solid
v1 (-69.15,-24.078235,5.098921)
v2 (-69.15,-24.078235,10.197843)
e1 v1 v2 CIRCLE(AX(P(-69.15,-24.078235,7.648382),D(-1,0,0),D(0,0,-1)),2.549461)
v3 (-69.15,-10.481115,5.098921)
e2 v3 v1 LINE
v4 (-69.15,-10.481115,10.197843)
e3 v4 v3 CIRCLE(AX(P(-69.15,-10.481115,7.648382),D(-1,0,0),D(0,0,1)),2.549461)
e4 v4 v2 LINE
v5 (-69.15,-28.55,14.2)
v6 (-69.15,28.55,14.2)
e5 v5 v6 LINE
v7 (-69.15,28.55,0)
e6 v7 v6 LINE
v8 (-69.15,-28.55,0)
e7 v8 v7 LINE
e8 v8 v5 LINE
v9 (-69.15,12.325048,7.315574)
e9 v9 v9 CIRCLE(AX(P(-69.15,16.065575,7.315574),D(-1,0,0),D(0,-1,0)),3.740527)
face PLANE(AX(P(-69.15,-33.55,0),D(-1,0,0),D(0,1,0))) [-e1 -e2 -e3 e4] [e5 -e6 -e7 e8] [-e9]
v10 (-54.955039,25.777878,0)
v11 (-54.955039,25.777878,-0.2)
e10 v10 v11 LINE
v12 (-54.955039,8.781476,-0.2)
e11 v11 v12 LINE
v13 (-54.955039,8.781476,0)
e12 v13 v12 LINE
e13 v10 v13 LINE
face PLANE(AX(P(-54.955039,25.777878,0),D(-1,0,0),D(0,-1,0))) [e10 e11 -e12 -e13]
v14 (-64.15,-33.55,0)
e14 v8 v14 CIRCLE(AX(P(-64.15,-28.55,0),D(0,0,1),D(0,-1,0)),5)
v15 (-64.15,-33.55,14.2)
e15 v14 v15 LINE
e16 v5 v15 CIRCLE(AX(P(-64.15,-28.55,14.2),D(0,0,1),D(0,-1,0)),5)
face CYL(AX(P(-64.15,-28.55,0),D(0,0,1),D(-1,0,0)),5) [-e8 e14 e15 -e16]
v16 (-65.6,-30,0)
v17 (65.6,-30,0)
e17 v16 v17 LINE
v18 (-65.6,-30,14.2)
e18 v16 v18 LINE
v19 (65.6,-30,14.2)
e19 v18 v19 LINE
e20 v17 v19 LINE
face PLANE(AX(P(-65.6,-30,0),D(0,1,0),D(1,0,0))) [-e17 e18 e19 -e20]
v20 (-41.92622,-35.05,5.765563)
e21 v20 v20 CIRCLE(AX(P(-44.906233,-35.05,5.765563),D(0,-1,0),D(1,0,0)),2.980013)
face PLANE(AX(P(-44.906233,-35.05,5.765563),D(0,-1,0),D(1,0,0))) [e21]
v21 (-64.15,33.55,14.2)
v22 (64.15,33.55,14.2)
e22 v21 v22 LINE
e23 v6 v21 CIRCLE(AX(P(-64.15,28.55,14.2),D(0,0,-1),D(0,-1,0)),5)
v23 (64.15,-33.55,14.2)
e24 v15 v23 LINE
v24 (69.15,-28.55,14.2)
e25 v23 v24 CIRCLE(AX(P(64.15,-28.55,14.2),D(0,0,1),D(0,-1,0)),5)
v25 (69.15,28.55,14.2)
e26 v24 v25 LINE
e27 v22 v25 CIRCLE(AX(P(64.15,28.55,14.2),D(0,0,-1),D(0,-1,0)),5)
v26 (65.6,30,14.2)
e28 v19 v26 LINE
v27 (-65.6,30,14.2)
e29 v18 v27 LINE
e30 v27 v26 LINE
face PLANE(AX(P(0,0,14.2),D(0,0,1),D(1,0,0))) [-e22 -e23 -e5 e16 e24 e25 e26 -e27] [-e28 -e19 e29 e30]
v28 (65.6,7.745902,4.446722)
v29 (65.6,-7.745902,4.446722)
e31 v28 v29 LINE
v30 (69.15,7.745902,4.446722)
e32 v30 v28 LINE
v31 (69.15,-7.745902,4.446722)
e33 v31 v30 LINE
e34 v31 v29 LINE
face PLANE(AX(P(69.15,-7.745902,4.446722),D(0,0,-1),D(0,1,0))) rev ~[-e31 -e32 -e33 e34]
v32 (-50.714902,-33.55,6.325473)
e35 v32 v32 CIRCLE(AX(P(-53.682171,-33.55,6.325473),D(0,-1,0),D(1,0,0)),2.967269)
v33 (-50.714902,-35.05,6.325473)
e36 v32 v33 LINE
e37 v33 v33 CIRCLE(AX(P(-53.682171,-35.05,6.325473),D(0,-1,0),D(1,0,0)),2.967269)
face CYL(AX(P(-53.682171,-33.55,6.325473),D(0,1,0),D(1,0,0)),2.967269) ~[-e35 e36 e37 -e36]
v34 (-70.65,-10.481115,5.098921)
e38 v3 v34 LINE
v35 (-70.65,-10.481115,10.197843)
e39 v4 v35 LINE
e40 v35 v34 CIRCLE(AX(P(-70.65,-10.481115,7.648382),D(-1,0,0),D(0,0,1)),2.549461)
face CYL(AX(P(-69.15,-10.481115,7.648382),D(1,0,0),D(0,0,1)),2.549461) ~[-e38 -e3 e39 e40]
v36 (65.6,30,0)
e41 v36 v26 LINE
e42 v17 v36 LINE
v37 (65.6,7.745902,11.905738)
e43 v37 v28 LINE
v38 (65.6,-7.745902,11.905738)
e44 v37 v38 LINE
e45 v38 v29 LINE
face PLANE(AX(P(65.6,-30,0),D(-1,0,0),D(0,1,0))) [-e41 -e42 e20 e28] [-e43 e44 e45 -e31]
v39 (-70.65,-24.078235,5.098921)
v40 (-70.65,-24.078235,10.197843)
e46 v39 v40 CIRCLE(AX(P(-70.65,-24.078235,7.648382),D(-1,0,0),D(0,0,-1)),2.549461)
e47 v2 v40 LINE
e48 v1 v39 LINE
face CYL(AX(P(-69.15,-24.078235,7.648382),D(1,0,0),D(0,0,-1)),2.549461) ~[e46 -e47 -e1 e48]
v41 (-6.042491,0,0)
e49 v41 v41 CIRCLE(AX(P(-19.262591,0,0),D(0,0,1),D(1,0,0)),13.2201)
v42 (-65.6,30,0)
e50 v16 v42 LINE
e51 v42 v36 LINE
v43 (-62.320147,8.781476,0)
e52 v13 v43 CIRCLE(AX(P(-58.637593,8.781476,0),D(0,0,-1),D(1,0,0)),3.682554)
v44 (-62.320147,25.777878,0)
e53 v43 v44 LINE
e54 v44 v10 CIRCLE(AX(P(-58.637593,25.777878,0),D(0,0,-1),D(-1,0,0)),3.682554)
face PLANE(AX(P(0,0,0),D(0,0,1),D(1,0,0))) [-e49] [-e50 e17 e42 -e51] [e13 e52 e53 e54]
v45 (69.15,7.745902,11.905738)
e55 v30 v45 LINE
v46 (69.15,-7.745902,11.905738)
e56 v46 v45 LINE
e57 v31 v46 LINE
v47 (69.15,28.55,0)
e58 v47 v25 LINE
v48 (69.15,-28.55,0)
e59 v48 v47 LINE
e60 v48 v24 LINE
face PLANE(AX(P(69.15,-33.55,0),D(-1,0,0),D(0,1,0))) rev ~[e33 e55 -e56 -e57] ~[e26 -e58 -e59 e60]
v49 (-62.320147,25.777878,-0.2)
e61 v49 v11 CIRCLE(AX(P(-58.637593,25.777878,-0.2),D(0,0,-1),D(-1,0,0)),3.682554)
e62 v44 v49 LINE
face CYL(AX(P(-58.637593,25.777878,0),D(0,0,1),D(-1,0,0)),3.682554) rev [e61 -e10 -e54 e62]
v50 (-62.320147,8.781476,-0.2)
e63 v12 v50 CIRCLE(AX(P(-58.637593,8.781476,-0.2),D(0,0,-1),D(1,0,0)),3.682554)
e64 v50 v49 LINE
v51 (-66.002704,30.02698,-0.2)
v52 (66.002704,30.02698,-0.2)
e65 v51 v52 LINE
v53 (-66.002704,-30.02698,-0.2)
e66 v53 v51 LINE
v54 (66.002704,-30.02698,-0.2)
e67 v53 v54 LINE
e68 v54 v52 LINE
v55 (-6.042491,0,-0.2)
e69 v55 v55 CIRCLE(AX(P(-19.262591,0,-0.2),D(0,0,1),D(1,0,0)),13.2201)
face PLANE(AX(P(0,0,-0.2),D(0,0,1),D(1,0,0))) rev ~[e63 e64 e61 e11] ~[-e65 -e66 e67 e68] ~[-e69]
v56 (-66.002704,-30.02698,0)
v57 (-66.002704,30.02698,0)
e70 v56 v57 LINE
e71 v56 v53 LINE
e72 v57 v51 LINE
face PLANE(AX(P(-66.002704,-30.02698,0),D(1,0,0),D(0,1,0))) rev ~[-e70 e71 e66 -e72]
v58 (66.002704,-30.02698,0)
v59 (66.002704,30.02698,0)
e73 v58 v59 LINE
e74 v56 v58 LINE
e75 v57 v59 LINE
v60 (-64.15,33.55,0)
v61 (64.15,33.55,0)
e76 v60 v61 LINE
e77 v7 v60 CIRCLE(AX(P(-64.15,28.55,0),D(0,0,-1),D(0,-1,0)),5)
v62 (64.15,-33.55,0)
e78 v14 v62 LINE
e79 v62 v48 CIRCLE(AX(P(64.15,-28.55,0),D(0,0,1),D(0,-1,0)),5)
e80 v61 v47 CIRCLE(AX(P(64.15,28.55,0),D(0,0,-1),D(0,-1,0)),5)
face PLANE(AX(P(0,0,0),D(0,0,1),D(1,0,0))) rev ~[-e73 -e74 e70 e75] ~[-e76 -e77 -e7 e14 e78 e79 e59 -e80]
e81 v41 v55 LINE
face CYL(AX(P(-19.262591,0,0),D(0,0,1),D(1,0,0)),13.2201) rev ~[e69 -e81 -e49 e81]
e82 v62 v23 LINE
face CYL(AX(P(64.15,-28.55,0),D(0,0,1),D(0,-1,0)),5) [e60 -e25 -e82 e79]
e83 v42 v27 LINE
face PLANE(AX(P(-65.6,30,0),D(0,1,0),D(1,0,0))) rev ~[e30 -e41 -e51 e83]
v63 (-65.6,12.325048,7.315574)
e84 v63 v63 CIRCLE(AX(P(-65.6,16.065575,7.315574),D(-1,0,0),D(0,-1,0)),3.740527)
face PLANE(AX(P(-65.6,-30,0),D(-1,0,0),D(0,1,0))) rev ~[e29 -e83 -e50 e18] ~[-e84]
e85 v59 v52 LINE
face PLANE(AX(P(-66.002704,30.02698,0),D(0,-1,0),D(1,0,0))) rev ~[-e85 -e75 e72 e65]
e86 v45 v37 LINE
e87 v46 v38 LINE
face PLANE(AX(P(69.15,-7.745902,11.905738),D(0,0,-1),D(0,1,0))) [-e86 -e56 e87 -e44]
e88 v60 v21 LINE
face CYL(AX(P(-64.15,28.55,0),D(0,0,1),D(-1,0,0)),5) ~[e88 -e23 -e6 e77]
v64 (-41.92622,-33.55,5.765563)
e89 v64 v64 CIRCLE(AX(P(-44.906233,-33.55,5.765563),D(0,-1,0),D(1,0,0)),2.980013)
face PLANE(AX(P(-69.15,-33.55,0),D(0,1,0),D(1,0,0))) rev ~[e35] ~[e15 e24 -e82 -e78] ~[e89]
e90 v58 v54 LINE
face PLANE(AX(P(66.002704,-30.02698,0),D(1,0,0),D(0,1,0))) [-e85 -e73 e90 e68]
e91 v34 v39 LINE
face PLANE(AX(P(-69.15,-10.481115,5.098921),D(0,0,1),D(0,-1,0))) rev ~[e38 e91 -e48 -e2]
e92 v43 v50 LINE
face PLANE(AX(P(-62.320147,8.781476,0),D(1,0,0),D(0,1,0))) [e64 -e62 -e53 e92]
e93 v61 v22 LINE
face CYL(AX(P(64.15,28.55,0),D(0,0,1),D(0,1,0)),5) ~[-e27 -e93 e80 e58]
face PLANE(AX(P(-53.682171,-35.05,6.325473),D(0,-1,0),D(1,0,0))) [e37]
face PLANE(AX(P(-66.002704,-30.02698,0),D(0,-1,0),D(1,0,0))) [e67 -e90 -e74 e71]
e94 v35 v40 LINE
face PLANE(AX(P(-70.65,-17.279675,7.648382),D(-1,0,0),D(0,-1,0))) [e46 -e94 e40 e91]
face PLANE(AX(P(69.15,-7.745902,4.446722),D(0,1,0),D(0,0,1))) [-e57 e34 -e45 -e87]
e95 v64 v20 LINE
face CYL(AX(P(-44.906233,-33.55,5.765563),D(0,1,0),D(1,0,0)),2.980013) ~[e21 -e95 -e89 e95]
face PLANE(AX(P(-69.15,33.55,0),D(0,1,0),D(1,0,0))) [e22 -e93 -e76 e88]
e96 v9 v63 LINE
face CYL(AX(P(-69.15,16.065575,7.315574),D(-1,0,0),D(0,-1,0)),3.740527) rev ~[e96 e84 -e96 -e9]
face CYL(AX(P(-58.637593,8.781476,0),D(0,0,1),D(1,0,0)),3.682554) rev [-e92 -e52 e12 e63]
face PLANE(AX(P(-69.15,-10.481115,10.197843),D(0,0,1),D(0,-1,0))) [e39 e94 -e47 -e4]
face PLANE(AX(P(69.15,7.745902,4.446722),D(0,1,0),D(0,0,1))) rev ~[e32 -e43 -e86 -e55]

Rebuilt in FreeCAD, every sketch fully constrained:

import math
import FreeCAD as App
import Part
import Sketcher
from FreeCAD import Vector
Q = App.Units.Quantity


def edges_at(feature, points):
    """Names of the edges that pass closest to the given points."""
    edges = feature.Shape.Edges
    near = lambda p: min(range(len(edges)), key=lambda i: edges[i].distToShape(Part.Vertex(*p))[0])
    return sorted({f"Edge{near(p) + 1}" for p in points})

doc = App.newDocument("Part")
params = doc.addObject("Spreadsheet::Sheet", "Params")
for row, (alias, value) in enumerate([
    ("sketch1_height", "60 mm"),
    ("sketch1_width", "138.3 mm"),
    ("sketch1_width2", "131.2 mm"),
    ("sketch1_height2", "67.1 mm"),
    ("pad1_length", "14.2 mm"),
    ("fillet_radius", "5 mm"),
    ("pad2_length", "0.2 mm"),
    ("pad3_length", "1.5 mm"),
    ("pad4_length", "1.5 mm"),
    ("pocket1_length", "24 mm"),
    ("pocket2_length", "25 mm"),
], start=1):
    params.set(f"A{row}", alias)
    params.set(f"B{row}", "=" + value)
    params.setAlias(f"B{row}", alias)

body = doc.addObject("PartDesign::Body", "Body")

sketch1 = body.newObject("Sketcher::SketchObject", "Sketch")
sketch1.AttachmentSupport = (doc.getObject("XY_Plane"), [""])
sketch1.MapMode = "FlatFace"
sketch1.addGeometry(Part.LineSegment(Vector(-69.15, 33.55, 0), Vector(-69.15, -33.55, 0)), False)
sketch1.addGeometry(Part.LineSegment(Vector(-69.15, -33.55, 0), Vector(69.15, -33.55, 0)), False)
sketch1.addGeometry(Part.LineSegment(Vector(69.15, -33.55, 0), Vector(69.15, 33.55, 0)), False)
sketch1.addGeometry(Part.LineSegment(Vector(69.15, 33.55, 0), Vector(-69.15, 33.55, 0)), False)
sketch1.addGeometry(Part.LineSegment(Vector(65.6, -30, 0), Vector(-65.6, -30, 0)), False)
sketch1.addGeometry(Part.LineSegment(Vector(-65.6, -30, 0), Vector(-65.6, 30, 0)), False)
sketch1.addGeometry(Part.LineSegment(Vector(-65.6, 30, 0), Vector(65.6, 30, 0)), False)
sketch1.addGeometry(Part.LineSegment(Vector(65.6, 30, 0), Vector(65.6, -30, 0)), False)
sketch1.addConstraint(Sketcher.Constraint("Coincident", 0, 2, 1, 1))
sketch1.addConstraint(Sketcher.Constraint("Coincident", 1, 2, 2, 1))
sketch1.addConstraint(Sketcher.Constraint("Coincident", 2, 2, 3, 1))
sketch1.addConstraint(Sketcher.Constraint("Coincident", 3, 2, 0, 1))
sketch1.addConstraint(Sketcher.Constraint("Coincident", 4, 2, 5, 1))
sketch1.addConstraint(Sketcher.Constraint("Coincident", 5, 2, 6, 1))
sketch1.addConstraint(Sketcher.Constraint("Coincident", 6, 2, 7, 1))
sketch1.addConstraint(Sketcher.Constraint("Coincident", 7, 2, 4, 1))
sketch1.addConstraint(Sketcher.Constraint("Vertical", 0))
sketch1.addConstraint(Sketcher.Constraint("Horizontal", 1))
sketch1.addConstraint(Sketcher.Constraint("Vertical", 2))
sketch1.addConstraint(Sketcher.Constraint("Horizontal", 3))
sketch1.addConstraint(Sketcher.Constraint("Horizontal", 4))
sketch1.addConstraint(Sketcher.Constraint("Vertical", 5))
sketch1.addConstraint(Sketcher.Constraint("Horizontal", 6))
sketch1.addConstraint(Sketcher.Constraint("Vertical", 7))
sketch1.addConstraint(Sketcher.Constraint("Symmetric", 0, 2, 2, 2, -1, 1))
sketch1.addConstraint(Sketcher.Constraint("Symmetric", 4, 2, 6, 2, -1, 1))
sketch1.addConstraint(Sketcher.Constraint("DistanceY", 5, 1, 5, 2, Q("60 mm")))
sketch1.addConstraint(Sketcher.Constraint("DistanceX", 1, 1, 1, 2, Q("138.3 mm")))
sketch1.addConstraint(Sketcher.Constraint("DistanceX", 4, 2, 4, 1, Q("131.2 mm")))
sketch1.addConstraint(Sketcher.Constraint("DistanceY", 0, 2, 0, 1, Q("67.1 mm")))
sketch1.setExpression("Constraints[18]", "Params.sketch1_height")
sketch1.setExpression("Constraints[19]", "Params.sketch1_width")
sketch1.setExpression("Constraints[20]", "Params.sketch1_width2")
sketch1.setExpression("Constraints[21]", "Params.sketch1_height2")
pad1 = body.newObject("PartDesign::Pad", "Pad")
pad1.Profile = sketch1
pad1.setExpression("Length", "Params.pad1_length")
doc.recompute()

fillet = body.newObject("PartDesign::Fillet", "Fillet")
fillet.Base = (pad1, edges_at(pad1, [
    (69.15, 33.55, 7.1),
    (69.15, -33.55, 7.1),
    (-69.15, -33.55, 7.1),
    (-69.15, 33.55, 7.1),
]))
fillet.setExpression("Radius", "Params.fillet_radius")

sketch2 = body.newObject("Sketcher::SketchObject", "Sketch001")
sketch2.AttachmentSupport = (doc.getObject("XY_Plane"), [""])
sketch2.MapMode = "FlatFace"
sketch2.addGeometry(Part.LineSegment(Vector(-66.002704, 30.02698, 0), Vector(-66.002704, -30.02698, 0)), False)
sketch2.addGeometry(Part.LineSegment(Vector(-66.002704, -30.02698, 0), Vector(66.002704, -30.02698, 0)), False)
sketch2.addGeometry(Part.LineSegment(Vector(66.002704, -30.02698, 0), Vector(66.002704, 30.02698, 0)), False)
sketch2.addGeometry(Part.LineSegment(Vector(66.002704, 30.02698, 0), Vector(-66.002704, 30.02698, 0)), False)
sketch2.addGeometry(Part.Circle(Vector(-19.262591, 0, 0), Vector(0, 0, 1), 13.2201), False)
sketch2.addGeometry(Part.LineSegment(Vector(-62.320147, 8.781476, 0), Vector(-62.320147, 25.777878, 0)), False)
sketch2.addGeometry(Part.ArcOfCircle(Part.Circle(Vector(-58.637593, 25.777878, 0), Vector(0, 0, 1), 3.682554), math.radians(0), math.radians(180)), False)
sketch2.addGeometry(Part.LineSegment(Vector(-54.955039, 25.777878, 0), Vector(-54.955039, 8.781476, 0)), False)
sketch2.addGeometry(Part.ArcOfCircle(Part.Circle(Vector(-58.637593, 8.781476, 0), Vector(0, 0, 1), 3.682554), math.radians(180), math.radians(360)), False)
sketch2.addConstraint(Sketcher.Constraint("Coincident", 0, 2, 1, 1))
sketch2.addConstraint(Sketcher.Constraint("Coincident", 1, 2, 2, 1))
sketch2.addConstraint(Sketcher.Constraint("Coincident", 2, 2, 3, 1))
sketch2.addConstraint(Sketcher.Constraint("Coincident", 3, 2, 0, 1))
sketch2.addConstraint(Sketcher.Constraint("Tangent", 5, 2, 6, 2))
sketch2.addConstraint(Sketcher.Constraint("Tangent", 6, 1, 7, 1))
sketch2.addConstraint(Sketcher.Constraint("Tangent", 7, 2, 8, 2))
sketch2.addConstraint(Sketcher.Constraint("Tangent", 8, 1, 5, 1))
sketch2.addConstraint(Sketcher.Constraint("Vertical", 0))
sketch2.addConstraint(Sketcher.Constraint("Horizontal", 1))
sketch2.addConstraint(Sketcher.Constraint("Vertical", 2))
sketch2.addConstraint(Sketcher.Constraint("Horizontal", 3))
sketch2.addConstraint(Sketcher.Constraint("Vertical", 5))
sketch2.addConstraint(Sketcher.Constraint("Vertical", 7))
sketch2.addConstraint(Sketcher.Constraint("Symmetric", 0, 2, 2, 2, -1, 1))
sketch2.addConstraint(Sketcher.Constraint("PointOnObject", 4, 3, -1))
sketch2.addConstraint(Sketcher.Constraint("Diameter", 4, Q("26.4402 mm")))
sketch2.addConstraint(Sketcher.Constraint("Radius", 6, Q("3.682554 mm")))
sketch2.addConstraint(Sketcher.Constraint("DistanceY", 0, 2, 0, 1, Q("60.05396 mm")))
sketch2.addConstraint(Sketcher.Constraint("DistanceY", 6, 3, 2, 2, Q("4.249102 mm")))
sketch2.addConstraint(Sketcher.Constraint("DistanceX", 1, 1, 1, 2, Q("132.005408 mm")))
sketch2.addConstraint(Sketcher.Constraint("DistanceY", 5, 1, 5, 2, Q("16.996402 mm")))
sketch2.addConstraint(Sketcher.Constraint("DistanceX", 4, 3, -1, 1, Q("19.262591 mm")))
sketch2.addConstraint(Sketcher.Constraint("DistanceX", 6, 1, -1, 1, Q("54.955039 mm")))
pad2 = body.newObject("PartDesign::Pad", "Pad001")
pad2.Profile = sketch2
pad2.setExpression("Length", "Params.pad2_length")
pad2.Reversed = True

sketch3 = body.newObject("Sketcher::SketchObject", "Sketch002")
sketch3.AttachmentSupport = (doc.getObject("XZ_Plane"), [""])
sketch3.MapMode = "FlatFace"
sketch3.AttachmentOffset = App.Placement(Vector(0, 0, 33.55), App.Rotation())
sketch3.addGeometry(Part.Circle(Vector(-53.682171, 6.325473, 0), Vector(0, 0, 1), 2.967269), False)
sketch3.addGeometry(Part.Circle(Vector(-44.906233, 5.765563, 0), Vector(0, 0, 1), 2.980013), False)
sketch3.addConstraint(Sketcher.Constraint("Diameter", 0, Q("5.934538 mm")))
sketch3.addConstraint(Sketcher.Constraint("Diameter", 1, Q("5.960026 mm")))
sketch3.addConstraint(Sketcher.Constraint("DistanceX", 0, 3, -1, 1, Q("53.682171 mm")))
sketch3.addConstraint(Sketcher.Constraint("DistanceY", 1, 3, 0, 3, Q("0.55991 mm")))
sketch3.addConstraint(Sketcher.Constraint("DistanceY", -1, 1, 0, 3, Q("6.325473 mm")))
sketch3.addConstraint(Sketcher.Constraint("DistanceX", 1, 3, -1, 1, Q("44.906233 mm")))
pad3 = body.newObject("PartDesign::Pad", "Pad002")
pad3.Profile = sketch3
pad3.setExpression("Length", "Params.pad3_length")

sketch4 = body.newObject("Sketcher::SketchObject", "Sketch003")
sketch4.AttachmentSupport = (doc.getObject("YZ_Plane"), [""])
sketch4.MapMode = "FlatFace"
sketch4.AttachmentOffset = App.Placement(Vector(0, 0, -69.15), App.Rotation())
sketch4.addGeometry(Part.LineSegment(Vector(-10.481115, 5.098921, 0), Vector(-24.078235, 5.098921, 0)), False)
sketch4.addGeometry(Part.ArcOfCircle(Part.Circle(Vector(-24.078235, 7.648382, 0), Vector(0, 0, 1), 2.549461), math.radians(90), math.radians(270)), False)
sketch4.addGeometry(Part.LineSegment(Vector(-24.078235, 10.197843, 0), Vector(-10.481115, 10.197843, 0)), False)
sketch4.addGeometry(Part.ArcOfCircle(Part.Circle(Vector(-10.481115, 7.648382, 0), Vector(0, 0, 1), 2.549461), math.radians(-90), math.radians(90)), False)
sketch4.addConstraint(Sketcher.Constraint("Tangent", 0, 2, 1, 2))
sketch4.addConstraint(Sketcher.Constraint("Tangent", 1, 1, 2, 1))
sketch4.addConstraint(Sketcher.Constraint("Tangent", 2, 2, 3, 2))
sketch4.addConstraint(Sketcher.Constraint("Tangent", 3, 1, 0, 1))
sketch4.addConstraint(Sketcher.Constraint("Horizontal", 0))
sketch4.addConstraint(Sketcher.Constraint("Horizontal", 2))
sketch4.addConstraint(Sketcher.Constraint("Radius", 1, Q("2.549461 mm")))
sketch4.addConstraint(Sketcher.Constraint("DistanceX", 0, 2, 0, 1, Q("13.59712 mm")))
sketch4.addConstraint(Sketcher.Constraint("DistanceY", -1, 1, 1, 3, Q("7.648382 mm")))
sketch4.addConstraint(Sketcher.Constraint("DistanceX", 1, 3, -1, 1, Q("24.078235 mm")))
pad4 = body.newObject("PartDesign::Pad", "Pad003")
pad4.Profile = sketch4
pad4.setExpression("Length", "Params.pad4_length")
pad4.Reversed = True

sketch5 = body.newObject("Sketcher::SketchObject", "Sketch004")
sketch5.AttachmentSupport = (doc.getObject("YZ_Plane"), [""])
sketch5.MapMode = "FlatFace"
sketch5.AttachmentOffset = App.Placement(Vector(0, 0, -69.15), App.Rotation())
sketch5.addGeometry(Part.Circle(Vector(16.065575, 7.315574, 0), Vector(0, 0, 1), 3.740527), False)
sketch5.addConstraint(Sketcher.Constraint("Diameter", 0, Q("7.481054 mm")))
sketch5.addConstraint(Sketcher.Constraint("DistanceX", -1, 1, 0, 3, Q("16.065575 mm")))
sketch5.addConstraint(Sketcher.Constraint("DistanceY", -1, 1, 0, 3, Q("7.315574 mm")))
pocket1 = body.newObject("PartDesign::Pocket", "Pocket")
pocket1.Profile = sketch5
pocket1.setExpression("Length", "Params.pocket1_length")
pocket1.Reversed = True

sketch6 = body.newObject("Sketcher::SketchObject", "Sketch005")
sketch6.AttachmentSupport = (doc.getObject("YZ_Plane"), [""])
sketch6.MapMode = "FlatFace"
sketch6.AttachmentOffset = App.Placement(Vector(0, 0, 69.15), App.Rotation())
sketch6.addGeometry(Part.LineSegment(Vector(-7.745902, 11.905738, 0), Vector(-7.745902, 4.446722, 0)), False)
sketch6.addGeometry(Part.LineSegment(Vector(-7.745902, 4.446722, 0), Vector(7.745902, 4.446722, 0)), False)
sketch6.addGeometry(Part.LineSegment(Vector(7.745902, 4.446722, 0), Vector(7.745902, 11.905738, 0)), False)
sketch6.addGeometry(Part.LineSegment(Vector(7.745902, 11.905738, 0), Vector(-7.745902, 11.905738, 0)), False)
sketch6.addConstraint(Sketcher.Constraint("Coincident", 0, 2, 1, 1))
sketch6.addConstraint(Sketcher.Constraint("Coincident", 1, 2, 2, 1))
sketch6.addConstraint(Sketcher.Constraint("Coincident", 2, 2, 3, 1))
sketch6.addConstraint(Sketcher.Constraint("Coincident", 3, 2, 0, 1))
sketch6.addConstraint(Sketcher.Constraint("Vertical", 0))
sketch6.addConstraint(Sketcher.Constraint("Horizontal", 1))
sketch6.addConstraint(Sketcher.Constraint("Vertical", 2))
sketch6.addConstraint(Sketcher.Constraint("Horizontal", 3))
sketch6.addConstraint(Sketcher.Constraint("DistanceX", 1, 1, 1, 2, Q("15.491804 mm")))
sketch6.addConstraint(Sketcher.Constraint("DistanceY", 0, 2, 0, 1, Q("7.459016 mm")))
sketch6.addConstraint(Sketcher.Constraint("DistanceX", 0, 2, -1, 1, Q("7.745902 mm")))
sketch6.addConstraint(Sketcher.Constraint("DistanceY", -1, 1, 0, 2, Q("4.446722 mm")))
pocket2 = body.newObject("PartDesign::Pocket", "Pocket001")
pocket2.Profile = sketch6
pocket2.setExpression("Length", "Params.pocket2_length")

doc.recompute()
